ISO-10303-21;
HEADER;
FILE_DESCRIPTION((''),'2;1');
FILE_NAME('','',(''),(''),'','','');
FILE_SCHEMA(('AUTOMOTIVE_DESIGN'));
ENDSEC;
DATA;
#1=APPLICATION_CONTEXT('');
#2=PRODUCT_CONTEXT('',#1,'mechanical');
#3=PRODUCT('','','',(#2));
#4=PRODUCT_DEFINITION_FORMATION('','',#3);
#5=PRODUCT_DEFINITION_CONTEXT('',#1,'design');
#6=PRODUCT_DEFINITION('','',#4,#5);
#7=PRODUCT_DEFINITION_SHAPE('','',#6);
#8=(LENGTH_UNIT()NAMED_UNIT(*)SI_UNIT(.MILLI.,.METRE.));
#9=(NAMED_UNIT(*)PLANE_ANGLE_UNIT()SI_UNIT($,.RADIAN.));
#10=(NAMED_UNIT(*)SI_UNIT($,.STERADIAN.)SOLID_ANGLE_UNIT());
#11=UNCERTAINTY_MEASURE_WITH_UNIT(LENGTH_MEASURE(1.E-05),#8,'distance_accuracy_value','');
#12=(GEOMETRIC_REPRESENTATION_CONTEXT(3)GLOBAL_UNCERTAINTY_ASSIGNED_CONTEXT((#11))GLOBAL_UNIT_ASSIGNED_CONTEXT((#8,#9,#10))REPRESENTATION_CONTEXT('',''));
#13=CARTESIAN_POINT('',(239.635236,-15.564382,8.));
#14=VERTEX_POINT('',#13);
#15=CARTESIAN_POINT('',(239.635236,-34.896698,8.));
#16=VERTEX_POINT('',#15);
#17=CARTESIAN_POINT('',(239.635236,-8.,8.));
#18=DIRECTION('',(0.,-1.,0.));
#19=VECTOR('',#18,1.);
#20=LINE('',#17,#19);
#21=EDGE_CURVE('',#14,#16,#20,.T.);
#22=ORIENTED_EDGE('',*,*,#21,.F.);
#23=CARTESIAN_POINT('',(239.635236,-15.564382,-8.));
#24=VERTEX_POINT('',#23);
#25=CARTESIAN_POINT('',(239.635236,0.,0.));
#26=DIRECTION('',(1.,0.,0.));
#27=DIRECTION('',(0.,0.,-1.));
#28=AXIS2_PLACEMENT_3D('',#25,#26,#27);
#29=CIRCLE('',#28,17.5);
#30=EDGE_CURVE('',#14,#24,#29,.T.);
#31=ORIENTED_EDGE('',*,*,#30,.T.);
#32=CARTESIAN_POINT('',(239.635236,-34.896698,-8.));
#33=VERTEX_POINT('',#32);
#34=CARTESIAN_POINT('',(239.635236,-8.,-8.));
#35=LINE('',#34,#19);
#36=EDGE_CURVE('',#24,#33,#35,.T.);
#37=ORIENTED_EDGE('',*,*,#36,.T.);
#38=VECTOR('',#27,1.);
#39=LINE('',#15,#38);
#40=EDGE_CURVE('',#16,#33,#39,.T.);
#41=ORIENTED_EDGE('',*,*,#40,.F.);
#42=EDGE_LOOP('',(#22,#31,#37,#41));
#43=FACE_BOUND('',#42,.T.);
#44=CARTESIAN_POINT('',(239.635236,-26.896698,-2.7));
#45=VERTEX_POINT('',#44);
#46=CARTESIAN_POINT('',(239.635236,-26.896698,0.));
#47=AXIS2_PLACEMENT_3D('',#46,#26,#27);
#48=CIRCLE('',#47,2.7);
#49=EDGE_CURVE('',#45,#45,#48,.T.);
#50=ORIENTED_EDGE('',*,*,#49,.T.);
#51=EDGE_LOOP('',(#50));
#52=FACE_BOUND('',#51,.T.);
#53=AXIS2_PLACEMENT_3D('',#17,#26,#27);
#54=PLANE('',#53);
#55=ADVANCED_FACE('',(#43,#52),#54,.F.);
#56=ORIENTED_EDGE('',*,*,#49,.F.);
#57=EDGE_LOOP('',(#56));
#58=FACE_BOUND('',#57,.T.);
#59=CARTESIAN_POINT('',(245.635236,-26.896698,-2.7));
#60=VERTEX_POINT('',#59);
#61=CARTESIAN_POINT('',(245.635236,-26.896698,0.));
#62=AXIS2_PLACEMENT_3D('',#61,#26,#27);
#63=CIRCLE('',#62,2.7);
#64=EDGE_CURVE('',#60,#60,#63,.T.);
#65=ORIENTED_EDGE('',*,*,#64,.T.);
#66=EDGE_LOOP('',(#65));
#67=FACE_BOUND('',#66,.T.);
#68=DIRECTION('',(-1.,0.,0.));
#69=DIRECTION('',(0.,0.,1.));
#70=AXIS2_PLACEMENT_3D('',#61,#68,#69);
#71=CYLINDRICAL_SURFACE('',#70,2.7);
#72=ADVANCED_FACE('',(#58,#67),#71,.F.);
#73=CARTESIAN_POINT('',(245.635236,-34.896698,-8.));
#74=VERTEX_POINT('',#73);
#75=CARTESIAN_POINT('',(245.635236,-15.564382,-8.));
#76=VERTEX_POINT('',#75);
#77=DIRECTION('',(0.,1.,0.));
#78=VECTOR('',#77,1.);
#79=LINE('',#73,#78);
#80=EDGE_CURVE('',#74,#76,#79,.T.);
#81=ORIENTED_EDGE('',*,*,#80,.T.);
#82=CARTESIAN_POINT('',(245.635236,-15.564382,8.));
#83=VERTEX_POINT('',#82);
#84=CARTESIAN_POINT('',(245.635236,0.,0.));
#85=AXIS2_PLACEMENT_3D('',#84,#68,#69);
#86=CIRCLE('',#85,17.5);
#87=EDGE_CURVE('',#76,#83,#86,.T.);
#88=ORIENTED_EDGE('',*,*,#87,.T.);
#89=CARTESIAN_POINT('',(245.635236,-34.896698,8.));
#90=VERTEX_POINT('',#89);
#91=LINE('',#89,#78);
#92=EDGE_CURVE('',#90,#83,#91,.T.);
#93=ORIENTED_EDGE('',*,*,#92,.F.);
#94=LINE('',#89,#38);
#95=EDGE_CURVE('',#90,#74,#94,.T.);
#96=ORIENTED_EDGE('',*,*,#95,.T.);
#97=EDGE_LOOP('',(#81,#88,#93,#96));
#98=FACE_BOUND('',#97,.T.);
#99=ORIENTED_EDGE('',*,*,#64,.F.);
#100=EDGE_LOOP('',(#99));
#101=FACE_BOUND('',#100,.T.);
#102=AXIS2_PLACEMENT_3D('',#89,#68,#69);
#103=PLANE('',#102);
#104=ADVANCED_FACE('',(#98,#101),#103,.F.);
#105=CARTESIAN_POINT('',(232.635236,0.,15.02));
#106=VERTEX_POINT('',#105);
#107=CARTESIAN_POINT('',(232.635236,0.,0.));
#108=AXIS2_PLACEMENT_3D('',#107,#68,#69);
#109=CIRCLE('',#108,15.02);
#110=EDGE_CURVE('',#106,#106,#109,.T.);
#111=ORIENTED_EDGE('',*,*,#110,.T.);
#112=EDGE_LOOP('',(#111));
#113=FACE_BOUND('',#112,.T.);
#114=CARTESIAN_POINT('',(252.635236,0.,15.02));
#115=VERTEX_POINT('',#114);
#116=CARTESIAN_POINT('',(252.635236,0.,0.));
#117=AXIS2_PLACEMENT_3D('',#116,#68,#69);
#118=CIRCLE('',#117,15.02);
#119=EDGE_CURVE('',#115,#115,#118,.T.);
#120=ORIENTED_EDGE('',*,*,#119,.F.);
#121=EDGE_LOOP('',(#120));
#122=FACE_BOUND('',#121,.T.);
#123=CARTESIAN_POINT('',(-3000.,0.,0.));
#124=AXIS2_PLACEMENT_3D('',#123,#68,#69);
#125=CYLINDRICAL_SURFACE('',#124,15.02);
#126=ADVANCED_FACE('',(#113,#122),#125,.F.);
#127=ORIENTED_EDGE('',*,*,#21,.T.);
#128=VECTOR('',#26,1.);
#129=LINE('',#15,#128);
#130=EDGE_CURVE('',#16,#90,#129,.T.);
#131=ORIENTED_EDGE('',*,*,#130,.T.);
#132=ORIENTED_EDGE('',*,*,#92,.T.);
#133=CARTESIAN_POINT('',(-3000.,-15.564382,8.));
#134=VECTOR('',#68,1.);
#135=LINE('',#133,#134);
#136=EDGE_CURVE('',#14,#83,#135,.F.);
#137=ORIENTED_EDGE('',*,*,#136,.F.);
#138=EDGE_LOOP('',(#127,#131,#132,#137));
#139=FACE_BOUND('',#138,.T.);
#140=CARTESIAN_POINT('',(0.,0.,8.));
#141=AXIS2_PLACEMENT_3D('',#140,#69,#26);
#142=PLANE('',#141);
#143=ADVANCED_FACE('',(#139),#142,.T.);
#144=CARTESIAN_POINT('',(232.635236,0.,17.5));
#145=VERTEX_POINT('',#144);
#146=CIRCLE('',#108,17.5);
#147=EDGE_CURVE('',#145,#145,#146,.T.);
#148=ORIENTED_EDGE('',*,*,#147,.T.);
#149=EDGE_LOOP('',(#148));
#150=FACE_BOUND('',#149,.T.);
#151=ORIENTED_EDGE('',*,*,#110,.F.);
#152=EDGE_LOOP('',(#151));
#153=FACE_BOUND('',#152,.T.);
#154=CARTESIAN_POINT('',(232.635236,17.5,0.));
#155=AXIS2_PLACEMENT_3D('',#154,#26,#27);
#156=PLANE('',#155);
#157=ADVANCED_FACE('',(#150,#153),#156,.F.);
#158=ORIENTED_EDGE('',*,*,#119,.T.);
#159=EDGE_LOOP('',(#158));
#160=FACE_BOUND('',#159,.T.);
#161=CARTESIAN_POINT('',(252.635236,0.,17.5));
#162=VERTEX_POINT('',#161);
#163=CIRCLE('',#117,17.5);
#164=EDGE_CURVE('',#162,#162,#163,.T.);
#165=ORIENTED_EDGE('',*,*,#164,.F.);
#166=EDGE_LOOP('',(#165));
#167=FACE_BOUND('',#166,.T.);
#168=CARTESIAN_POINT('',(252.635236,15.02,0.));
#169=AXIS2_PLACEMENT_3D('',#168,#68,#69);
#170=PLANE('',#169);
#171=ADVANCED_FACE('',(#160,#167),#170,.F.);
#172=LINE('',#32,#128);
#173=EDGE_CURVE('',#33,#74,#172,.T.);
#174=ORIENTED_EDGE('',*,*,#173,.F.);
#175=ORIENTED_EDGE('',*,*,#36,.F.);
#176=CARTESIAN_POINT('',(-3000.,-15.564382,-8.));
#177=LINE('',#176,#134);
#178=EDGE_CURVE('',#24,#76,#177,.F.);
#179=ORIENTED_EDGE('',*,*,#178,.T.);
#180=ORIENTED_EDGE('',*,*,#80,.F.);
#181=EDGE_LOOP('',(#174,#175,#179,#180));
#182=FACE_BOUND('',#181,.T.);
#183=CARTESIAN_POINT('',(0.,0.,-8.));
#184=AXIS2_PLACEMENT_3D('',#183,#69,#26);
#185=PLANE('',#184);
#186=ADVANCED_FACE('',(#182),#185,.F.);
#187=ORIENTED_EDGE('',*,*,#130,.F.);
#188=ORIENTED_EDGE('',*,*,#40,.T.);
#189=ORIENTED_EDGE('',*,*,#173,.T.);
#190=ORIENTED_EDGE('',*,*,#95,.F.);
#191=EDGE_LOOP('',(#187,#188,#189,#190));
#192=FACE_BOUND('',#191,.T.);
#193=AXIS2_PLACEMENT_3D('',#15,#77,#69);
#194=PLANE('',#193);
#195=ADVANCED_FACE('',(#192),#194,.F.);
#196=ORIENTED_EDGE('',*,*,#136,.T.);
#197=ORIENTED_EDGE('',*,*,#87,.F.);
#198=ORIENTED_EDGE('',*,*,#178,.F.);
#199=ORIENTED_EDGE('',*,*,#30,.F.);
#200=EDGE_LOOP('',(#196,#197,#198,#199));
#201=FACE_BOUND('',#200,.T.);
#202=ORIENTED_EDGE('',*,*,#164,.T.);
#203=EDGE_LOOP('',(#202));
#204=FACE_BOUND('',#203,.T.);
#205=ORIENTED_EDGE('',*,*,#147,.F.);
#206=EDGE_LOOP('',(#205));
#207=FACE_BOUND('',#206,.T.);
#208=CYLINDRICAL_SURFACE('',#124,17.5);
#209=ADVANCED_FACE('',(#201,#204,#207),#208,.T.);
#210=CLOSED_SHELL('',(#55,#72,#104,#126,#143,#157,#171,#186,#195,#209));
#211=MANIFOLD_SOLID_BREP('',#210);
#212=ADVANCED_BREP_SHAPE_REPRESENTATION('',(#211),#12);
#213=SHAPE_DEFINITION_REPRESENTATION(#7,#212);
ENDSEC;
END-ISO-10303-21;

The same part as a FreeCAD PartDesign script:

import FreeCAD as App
import Part
import Sketcher

V = App.Vector

doc = App.newDocument("Part")
body = doc.addObject("PartDesign::Body", "Body")

# Sketch on XY plane
sketch1 = body.newObject("Sketcher::SketchObject", "Sketch")
sketch1.AttachmentSupport = (doc.getObject("XY_Plane"), [""])
sketch1.MapMode = "FlatFace"
sketch1.addGeometry(Part.LineSegment(V(232.6, 17.5, 0), V(232.6, 15, 0)), False)
sketch1.addGeometry(Part.LineSegment(V(232.6, 15, 0), V(252.6, 15, 0)), False)
sketch1.addGeometry(Part.LineSegment(V(252.6, 15, 0), V(252.6, 17.5, 0)), False)
sketch1.addGeometry(Part.LineSegment(V(252.6, 17.5, 0), V(232.6, 17.5, 0)), False)
sketch1.addConstraint(Sketcher.Constraint("Coincident", 0, 2, 1, 1))
sketch1.addConstraint(Sketcher.Constraint("Coincident", 1, 2, 2, 1))
sketch1.addConstraint(Sketcher.Constraint("Coincident", 2, 2, 3, 1))
sketch1.addConstraint(Sketcher.Constraint("Coincident", 3, 2, 0, 1))
sketch1.addConstraint(Sketcher.Constraint("Vertical", 0))
sketch1.addConstraint(Sketcher.Constraint("Horizontal", 1))
sketch1.addConstraint(Sketcher.Constraint("Vertical", 2))
sketch1.addConstraint(Sketcher.Constraint("Horizontal", 3))
sketch1.addConstraint(Sketcher.Constraint("DistanceX", 1, 1, 1, 2, 20.0))
sketch1.addConstraint(Sketcher.Constraint("DistanceY", 0, 2, 0, 1, 2.48))
sketch1.addConstraint(Sketcher.Constraint("DistanceY", -1, 1, 2, 2, 17.5))
sketch1.addConstraint(Sketcher.Constraint("DistanceX", -1, 1, 0, 2, 232.635236))
revolution = body.newObject("PartDesign::Revolution", "Revolution")
revolution.Profile = sketch1
revolution.ReferenceAxis = (sketch1, ["H_Axis"])
revolution.Angle = 360

# Sketch on XY plane
sketch2 = body.newObject("Sketcher::SketchObject", "Sketch001")
sketch2.AttachmentSupport = (doc.getObject("XY_Plane"), [""])
sketch2.MapMode = "FlatFace"
sketch2.addGeometry(Part.LineSegment(V(240, -8, 0), V(240, -35, 0)), False)
sketch2.addGeometry(Part.LineSegment(V(240, -35, 0), V(246, -35, 0)), False)
sketch2.addGeometry(Part.LineSegment(V(246, -35, 0), V(246, -8, 0)), False)
sketch2.addGeometry(Part.LineSegment(V(246, -8, 0), V(240, -8, 0)), False)
sketch2.addConstraint(Sketcher.Constraint("Coincident", 0, 2, 1, 1))
sketch2.addConstraint(Sketcher.Constraint("Coincident", 1, 2, 2, 1))
sketch2.addConstraint(Sketcher.Constraint("Coincident", 2, 2, 3, 1))
sketch2.addConstraint(Sketcher.Constraint("Coincident", 3, 2, 0, 1))
sketch2.addConstraint(Sketcher.Constraint("Vertical", 0))
sketch2.addConstraint(Sketcher.Constraint("Horizontal", 1))
sketch2.addConstraint(Sketcher.Constraint("Vertical", 2))
sketch2.addConstraint(Sketcher.Constraint("Horizontal", 3))
sketch2.addConstraint(Sketcher.Constraint("DistanceX", 1, 1, 1, 2, 6.0))
sketch2.addConstraint(Sketcher.Constraint("DistanceY", 2, 2, -1, 1, 8.0))
sketch2.addConstraint(Sketcher.Constraint("DistanceY", 0, 2, 0, 1, 26.896698))
sketch2.addConstraint(Sketcher.Constraint("DistanceX", -1, 1, 0, 2, 239.635236))
pad1 = body.newObject("PartDesign::Pad", "Pad")
pad1.Profile = sketch2
pad1.Length = 16
pad1.Midplane = True

# Sketch on XY plane
sketch3 = body.newObject("Sketcher::SketchObject", "Sketch002")
sketch3.AttachmentSupport = (doc.getObject("XY_Plane"), [""])
sketch3.MapMode = "FlatFace"
sketch3.addGeometry(Part.LineSegment(V(239, 15, 0), V(239, 0, 0)), False)
sketch3.addGeometry(Part.LineSegment(V(239, 0, 0), V(247, 0, 0)), False)
sketch3.addGeometry(Part.LineSegment(V(247, 0, 0), V(247, 15, 0)), False)
sketch3.addGeometry(Part.LineSegment(V(247, 15, 0), V(239, 15, 0)), False)
sketch3.addConstraint(Sketcher.Constraint("Coincident", 0, 2, 1, 1))
sketch3.addConstraint(Sketcher.Constraint("Coincident", 1, 2, 2, 1))
sketch3.addConstraint(Sketcher.Constraint("Coincident", 2, 2, 3, 1))
sketch3.addConstraint(Sketcher.Constraint("Coincident", 3, 2, 0, 1))
sketch3.addConstraint(Sketcher.Constraint("Vertical", 0))
sketch3.addConstraint(Sketcher.Constraint("Horizontal", 1))
sketch3.addConstraint(Sketcher.Constraint("Vertical", 2))
sketch3.addConstraint(Sketcher.Constraint("Horizontal", 3))
sketch3.addConstraint(Sketcher.Constraint("PointOnObject", 0, 2, -1))
sketch3.addConstraint(Sketcher.Constraint("DistanceX", 1, 1, 1, 2, 8.0))
sketch3.addConstraint(Sketcher.Constraint("DistanceY", 0, 2, 0, 1, 15.02))
sketch3.addConstraint(Sketcher.Constraint("DistanceX", -1, 1, 0, 2, 238.635236))
groove = body.newObject("PartDesign::Groove", "Groove")
groove.Profile = sketch3
groove.ReferenceAxis = (sketch3, ["H_Axis"])
groove.Angle = 360

# Sketch on YZ plane
sketch4 = body.newObject("Sketcher::SketchObject", "Sketch003")
sketch4.AttachmentSupport = (doc.getObject("YZ_Plane"), [""])
sketch4.MapMode = "FlatFace"
sketch4.AttachmentOffset = App.Placement(V(0, 0, 239.635236), App.Rotation())
sketch4.addGeometry(Part.Circle(V(-26.9, 0, 0), V(0, 0, 1), 2.7), False)
sketch4.addConstraint(Sketcher.Constraint("PointOnObject", 0, 3, -1))
sketch4.addConstraint(Sketcher.Constraint("Diameter", 0, 5.4))
sketch4.addConstraint(Sketcher.Constraint("DistanceX", 0, 3, -1, 1, 26.896698))
pocket1 = body.newObject("PartDesign::Pocket", "Pocket")
pocket1.Profile = sketch4
pocket1.Length = 6
pocket1.Reversed = True

doc.recompute()
